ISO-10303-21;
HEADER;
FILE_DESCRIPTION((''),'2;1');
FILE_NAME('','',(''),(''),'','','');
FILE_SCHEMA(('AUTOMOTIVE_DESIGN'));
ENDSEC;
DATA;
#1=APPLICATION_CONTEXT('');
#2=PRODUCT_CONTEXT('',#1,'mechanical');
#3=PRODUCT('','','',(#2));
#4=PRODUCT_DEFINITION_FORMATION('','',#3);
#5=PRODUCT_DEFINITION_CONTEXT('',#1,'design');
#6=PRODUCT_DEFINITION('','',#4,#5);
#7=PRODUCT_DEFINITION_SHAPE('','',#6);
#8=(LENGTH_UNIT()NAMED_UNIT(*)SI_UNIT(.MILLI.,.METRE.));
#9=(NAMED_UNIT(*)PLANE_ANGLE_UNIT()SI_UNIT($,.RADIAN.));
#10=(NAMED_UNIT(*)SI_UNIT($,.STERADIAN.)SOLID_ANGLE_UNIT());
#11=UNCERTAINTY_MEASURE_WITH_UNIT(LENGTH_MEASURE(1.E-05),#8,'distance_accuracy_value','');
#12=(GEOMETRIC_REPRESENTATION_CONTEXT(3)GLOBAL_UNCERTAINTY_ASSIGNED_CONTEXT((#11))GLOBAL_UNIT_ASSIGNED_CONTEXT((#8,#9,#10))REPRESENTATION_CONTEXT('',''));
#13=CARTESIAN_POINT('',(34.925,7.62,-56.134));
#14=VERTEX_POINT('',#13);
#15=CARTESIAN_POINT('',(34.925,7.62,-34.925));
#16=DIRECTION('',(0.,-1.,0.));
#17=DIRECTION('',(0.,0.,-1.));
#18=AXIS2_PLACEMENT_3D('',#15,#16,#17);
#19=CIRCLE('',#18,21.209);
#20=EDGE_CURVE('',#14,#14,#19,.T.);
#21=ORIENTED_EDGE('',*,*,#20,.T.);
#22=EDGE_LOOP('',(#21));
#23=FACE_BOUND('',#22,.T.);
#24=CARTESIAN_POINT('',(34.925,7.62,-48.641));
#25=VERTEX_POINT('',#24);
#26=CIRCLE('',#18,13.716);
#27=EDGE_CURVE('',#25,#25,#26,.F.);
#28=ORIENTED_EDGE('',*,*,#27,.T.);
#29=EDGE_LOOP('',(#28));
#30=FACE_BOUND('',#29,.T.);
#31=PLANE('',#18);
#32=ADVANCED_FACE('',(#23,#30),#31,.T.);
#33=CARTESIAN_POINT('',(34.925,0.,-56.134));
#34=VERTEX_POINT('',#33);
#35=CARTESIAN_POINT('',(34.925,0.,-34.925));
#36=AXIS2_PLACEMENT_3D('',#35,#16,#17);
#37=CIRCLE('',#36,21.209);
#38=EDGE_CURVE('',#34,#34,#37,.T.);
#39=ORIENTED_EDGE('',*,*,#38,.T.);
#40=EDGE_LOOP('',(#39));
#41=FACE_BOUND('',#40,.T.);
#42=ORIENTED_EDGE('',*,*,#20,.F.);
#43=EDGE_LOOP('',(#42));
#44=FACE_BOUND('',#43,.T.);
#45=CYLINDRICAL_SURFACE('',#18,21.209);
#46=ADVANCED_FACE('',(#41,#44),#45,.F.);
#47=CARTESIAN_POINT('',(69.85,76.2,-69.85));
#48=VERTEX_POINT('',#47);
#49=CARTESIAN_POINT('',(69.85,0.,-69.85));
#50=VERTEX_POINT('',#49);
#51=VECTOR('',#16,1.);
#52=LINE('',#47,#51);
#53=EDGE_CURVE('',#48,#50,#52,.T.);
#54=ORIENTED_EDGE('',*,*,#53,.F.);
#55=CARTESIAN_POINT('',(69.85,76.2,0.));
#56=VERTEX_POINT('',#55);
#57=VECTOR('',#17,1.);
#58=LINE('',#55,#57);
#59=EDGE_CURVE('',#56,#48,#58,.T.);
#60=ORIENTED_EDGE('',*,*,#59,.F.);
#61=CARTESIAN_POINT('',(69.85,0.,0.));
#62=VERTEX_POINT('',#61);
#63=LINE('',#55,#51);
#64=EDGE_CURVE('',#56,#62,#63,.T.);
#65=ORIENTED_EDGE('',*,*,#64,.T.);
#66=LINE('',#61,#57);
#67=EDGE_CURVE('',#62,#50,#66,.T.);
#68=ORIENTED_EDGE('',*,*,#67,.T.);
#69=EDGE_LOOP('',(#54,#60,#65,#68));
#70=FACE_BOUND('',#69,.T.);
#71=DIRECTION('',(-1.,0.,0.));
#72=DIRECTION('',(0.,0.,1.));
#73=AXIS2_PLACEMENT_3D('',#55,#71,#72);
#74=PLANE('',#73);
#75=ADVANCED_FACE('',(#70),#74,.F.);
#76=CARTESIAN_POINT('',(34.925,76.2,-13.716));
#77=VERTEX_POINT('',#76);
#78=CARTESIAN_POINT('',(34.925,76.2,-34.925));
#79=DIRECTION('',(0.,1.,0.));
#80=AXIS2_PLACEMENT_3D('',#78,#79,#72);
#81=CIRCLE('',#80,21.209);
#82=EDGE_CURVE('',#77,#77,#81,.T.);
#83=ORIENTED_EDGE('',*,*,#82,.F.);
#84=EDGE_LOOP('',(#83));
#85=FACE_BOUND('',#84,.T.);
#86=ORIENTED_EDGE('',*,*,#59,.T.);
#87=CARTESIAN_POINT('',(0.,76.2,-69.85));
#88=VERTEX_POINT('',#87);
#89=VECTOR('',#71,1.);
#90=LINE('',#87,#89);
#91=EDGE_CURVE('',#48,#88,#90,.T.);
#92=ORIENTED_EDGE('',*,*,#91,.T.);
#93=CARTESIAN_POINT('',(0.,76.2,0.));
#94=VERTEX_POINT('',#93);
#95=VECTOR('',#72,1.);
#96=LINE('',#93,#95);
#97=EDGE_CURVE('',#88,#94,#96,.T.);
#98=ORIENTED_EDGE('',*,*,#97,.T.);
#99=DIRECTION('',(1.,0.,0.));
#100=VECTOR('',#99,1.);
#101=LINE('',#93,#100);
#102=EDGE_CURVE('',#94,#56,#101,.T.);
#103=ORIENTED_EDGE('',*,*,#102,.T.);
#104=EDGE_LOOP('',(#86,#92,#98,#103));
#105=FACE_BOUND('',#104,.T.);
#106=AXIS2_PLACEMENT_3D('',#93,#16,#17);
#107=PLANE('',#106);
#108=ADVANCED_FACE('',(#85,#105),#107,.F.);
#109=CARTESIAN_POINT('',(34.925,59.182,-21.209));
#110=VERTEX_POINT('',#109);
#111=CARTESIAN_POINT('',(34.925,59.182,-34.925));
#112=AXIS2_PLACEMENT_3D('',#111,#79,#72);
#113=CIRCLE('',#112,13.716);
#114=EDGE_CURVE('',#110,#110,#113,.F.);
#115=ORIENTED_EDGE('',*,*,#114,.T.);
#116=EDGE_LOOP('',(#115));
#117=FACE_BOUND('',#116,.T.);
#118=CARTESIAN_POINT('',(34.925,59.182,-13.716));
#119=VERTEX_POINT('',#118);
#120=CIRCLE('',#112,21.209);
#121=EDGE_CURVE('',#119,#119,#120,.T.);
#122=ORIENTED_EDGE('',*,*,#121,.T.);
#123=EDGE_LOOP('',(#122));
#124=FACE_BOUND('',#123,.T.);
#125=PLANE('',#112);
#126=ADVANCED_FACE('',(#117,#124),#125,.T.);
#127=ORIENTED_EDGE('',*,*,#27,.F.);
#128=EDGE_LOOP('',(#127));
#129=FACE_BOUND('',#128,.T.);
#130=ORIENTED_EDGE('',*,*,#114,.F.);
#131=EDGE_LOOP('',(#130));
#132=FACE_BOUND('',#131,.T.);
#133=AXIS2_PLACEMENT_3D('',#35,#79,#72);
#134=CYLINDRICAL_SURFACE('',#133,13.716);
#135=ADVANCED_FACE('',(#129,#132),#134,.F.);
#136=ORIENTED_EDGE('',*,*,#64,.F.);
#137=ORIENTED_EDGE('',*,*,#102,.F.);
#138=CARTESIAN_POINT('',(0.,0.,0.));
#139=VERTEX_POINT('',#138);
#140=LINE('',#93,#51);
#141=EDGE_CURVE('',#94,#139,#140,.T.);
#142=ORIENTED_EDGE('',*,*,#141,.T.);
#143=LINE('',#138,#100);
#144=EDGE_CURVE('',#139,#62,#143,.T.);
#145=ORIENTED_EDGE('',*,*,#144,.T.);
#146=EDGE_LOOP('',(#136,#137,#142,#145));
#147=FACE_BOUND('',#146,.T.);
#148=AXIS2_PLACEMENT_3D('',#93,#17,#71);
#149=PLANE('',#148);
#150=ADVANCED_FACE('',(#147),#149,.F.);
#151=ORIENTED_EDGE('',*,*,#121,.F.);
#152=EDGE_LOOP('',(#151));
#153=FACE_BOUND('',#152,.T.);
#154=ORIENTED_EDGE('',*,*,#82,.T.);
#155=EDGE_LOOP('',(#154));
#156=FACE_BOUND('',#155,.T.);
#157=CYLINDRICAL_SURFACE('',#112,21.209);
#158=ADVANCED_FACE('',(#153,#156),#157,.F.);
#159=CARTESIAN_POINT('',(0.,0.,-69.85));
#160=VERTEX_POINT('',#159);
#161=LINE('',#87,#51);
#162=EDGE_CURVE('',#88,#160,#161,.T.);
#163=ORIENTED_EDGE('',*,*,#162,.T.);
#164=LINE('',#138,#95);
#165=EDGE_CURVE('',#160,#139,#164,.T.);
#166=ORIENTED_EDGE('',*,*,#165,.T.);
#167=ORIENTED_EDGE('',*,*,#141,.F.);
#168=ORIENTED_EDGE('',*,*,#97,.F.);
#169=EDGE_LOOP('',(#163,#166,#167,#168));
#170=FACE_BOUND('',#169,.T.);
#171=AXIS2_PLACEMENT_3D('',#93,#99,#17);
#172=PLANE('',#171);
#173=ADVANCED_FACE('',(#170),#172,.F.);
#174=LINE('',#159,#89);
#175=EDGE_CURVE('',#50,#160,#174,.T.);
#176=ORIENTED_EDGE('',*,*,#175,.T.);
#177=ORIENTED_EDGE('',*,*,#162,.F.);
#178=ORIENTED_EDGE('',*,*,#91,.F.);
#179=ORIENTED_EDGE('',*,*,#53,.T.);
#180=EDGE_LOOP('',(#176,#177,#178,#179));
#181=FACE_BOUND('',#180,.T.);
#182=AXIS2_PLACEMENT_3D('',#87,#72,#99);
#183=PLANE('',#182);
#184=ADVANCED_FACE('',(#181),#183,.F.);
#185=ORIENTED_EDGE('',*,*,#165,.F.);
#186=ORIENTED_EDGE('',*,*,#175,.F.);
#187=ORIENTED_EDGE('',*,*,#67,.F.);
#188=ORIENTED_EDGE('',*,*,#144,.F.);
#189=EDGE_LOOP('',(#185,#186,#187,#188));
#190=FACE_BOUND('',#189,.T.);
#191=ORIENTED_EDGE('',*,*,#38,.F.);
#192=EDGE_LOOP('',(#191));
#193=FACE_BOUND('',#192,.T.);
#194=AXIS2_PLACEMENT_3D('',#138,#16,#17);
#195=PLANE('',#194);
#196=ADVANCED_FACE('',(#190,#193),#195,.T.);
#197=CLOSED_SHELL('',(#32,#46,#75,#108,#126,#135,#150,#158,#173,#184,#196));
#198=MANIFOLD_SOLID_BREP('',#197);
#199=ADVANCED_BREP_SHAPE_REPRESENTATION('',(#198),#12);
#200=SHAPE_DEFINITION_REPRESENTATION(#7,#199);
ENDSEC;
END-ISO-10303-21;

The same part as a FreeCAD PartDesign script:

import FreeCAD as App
import Part
import Sketcher
from FreeCAD import Vector
Q = App.Units.Quantity

doc = App.newDocument("Part")
body = doc.addObject("PartDesign::Body", "Body")

# Sketch on XZ plane
sketch1 = doc.addObject("Sketcher::SketchObject", "Sketch")
body.addObject(sketch1)
sketch1.AttachmentSupport = (doc.XZ_Plane, [""])
sketch1.MapMode = "FlatFace"
sketch1.addGeometry(Part.LineSegment(Vector(0, -70, 0), Vector(0, 0, 0)), False)
sketch1.addGeometry(Part.LineSegment(Vector(0, 0, 0), Vector(70, 0, 0)), False)
sketch1.addGeometry(Part.LineSegment(Vector(70, 0, 0), Vector(70, -70, 0)), False)
sketch1.addGeometry(Part.LineSegment(Vector(70, -70, 0), Vector(0, -70, 0)), False)
sketch1.addConstraint(Sketcher.Constraint("Coincident", 0, 2, 1, 1))
sketch1.addConstraint(Sketcher.Constraint("Coincident", 1, 2, 2, 1))
sketch1.addConstraint(Sketcher.Constraint("Coincident", 2, 2, 3, 1))
sketch1.addConstraint(Sketcher.Constraint("Coincident", 3, 2, 0, 1))
sketch1.addConstraint(Sketcher.Constraint("Vertical", 0))
sketch1.addConstraint(Sketcher.Constraint("Horizontal", 1))
sketch1.addConstraint(Sketcher.Constraint("Vertical", 2))
sketch1.addConstraint(Sketcher.Constraint("Horizontal", 3))
sketch1.addConstraint(Sketcher.Constraint("Coincident", 0, 2, -1, 1))
sketch1.addConstraint(Sketcher.Constraint("Equal", 3, 0))
sketch1.addConstraint(Sketcher.Constraint("DistanceX", 1, 1, 1, 2, Q("2.75 in")))
pad1 = doc.addObject("PartDesign::Pad", "Pad")
body.addObject(pad1)
pad1.Profile = sketch1
pad1.Length = Q("3 in")
pad1.Reversed = True

# Sketch on XZ plane
sketch2 = doc.addObject("Sketcher::SketchObject", "Sketch001")
body.addObject(sketch2)
sketch2.AttachmentSupport = (doc.XZ_Plane, [""])
sketch2.MapMode = "FlatFace"
sketch2.AttachmentOffset = App.Placement(Vector(0, 0, -3 * 25.4), App.Rotation())
sketch2.addGeometry(Part.Circle(Vector(35, -35, 0), Vector(0, 0, 1), 14), False)
sketch2.addConstraint(Sketcher.Constraint("Diameter", 0, Q("1.08 in")))
sketch2.addConstraint(Sketcher.Constraint("DistanceX", -1, 1, 0, 3, Q("1.375 in")))
sketch2.addConstraint(Sketcher.Constraint("DistanceY", 0, 3, -1, 1, Q("1.375 in")))
pocket1 = doc.addObject("PartDesign::Pocket", "Pocket")
body.addObject(pocket1)
pocket1.Profile = sketch2
pocket1.Length = Q("3 in")
pocket1.Reversed = True

# Sketch on XZ plane
sketch3 = doc.addObject("Sketcher::SketchObject", "Sketch002")
body.addObject(sketch3)
sketch3.AttachmentSupport = (doc.XZ_Plane, [""])
sketch3.MapMode = "FlatFace"
sketch3.AttachmentOffset = App.Placement(Vector(0, 0, -3 * 25.4), App.Rotation())
sketch3.addGeometry(Part.Circle(Vector(35, -35, 0), Vector(0, 0, 1), 21), False)
sketch3.addConstraint(Sketcher.Constraint("Diameter", 0, Q("1.67 in")))
sketch3.addConstraint(Sketcher.Constraint("DistanceX", -1, 1, 0, 3, Q("1.375 in")))
sketch3.addConstraint(Sketcher.Constraint("DistanceY", 0, 3, -1, 1, Q("1.375 in")))
pocket2 = doc.addObject("PartDesign::Pocket", "Pocket001")
body.addObject(pocket2)
pocket2.Profile = sketch3
pocket2.Length = Q("0.67 in")
pocket2.Reversed = True

# Sketch on XZ plane
sketch4 = doc.addObject("Sketcher::SketchObject", "Sketch003")
body.addObject(sketch4)
sketch4.AttachmentSupport = (doc.XZ_Plane, [""])
sketch4.MapMode = "FlatFace"
sketch4.addGeometry(Part.Circle(Vector(35, -35, 0), Vector(0, 0, 1), 21), False)
sketch4.addConstraint(Sketcher.Constraint("Diameter", 0, Q("1.67 in")))
sketch4.addConstraint(Sketcher.Constraint("DistanceX", -1, 1, 0, 3, Q("1.375 in")))
sketch4.addConstraint(Sketcher.Constraint("DistanceY", 0, 3, -1, 1, Q("1.375 in")))
pocket3 = doc.addObject("PartDesign::Pocket", "Pocket002")
body.addObject(pocket3)
pocket3.Profile = sketch4
pocket3.Length = Q("0.3 in")

doc.recompute()
